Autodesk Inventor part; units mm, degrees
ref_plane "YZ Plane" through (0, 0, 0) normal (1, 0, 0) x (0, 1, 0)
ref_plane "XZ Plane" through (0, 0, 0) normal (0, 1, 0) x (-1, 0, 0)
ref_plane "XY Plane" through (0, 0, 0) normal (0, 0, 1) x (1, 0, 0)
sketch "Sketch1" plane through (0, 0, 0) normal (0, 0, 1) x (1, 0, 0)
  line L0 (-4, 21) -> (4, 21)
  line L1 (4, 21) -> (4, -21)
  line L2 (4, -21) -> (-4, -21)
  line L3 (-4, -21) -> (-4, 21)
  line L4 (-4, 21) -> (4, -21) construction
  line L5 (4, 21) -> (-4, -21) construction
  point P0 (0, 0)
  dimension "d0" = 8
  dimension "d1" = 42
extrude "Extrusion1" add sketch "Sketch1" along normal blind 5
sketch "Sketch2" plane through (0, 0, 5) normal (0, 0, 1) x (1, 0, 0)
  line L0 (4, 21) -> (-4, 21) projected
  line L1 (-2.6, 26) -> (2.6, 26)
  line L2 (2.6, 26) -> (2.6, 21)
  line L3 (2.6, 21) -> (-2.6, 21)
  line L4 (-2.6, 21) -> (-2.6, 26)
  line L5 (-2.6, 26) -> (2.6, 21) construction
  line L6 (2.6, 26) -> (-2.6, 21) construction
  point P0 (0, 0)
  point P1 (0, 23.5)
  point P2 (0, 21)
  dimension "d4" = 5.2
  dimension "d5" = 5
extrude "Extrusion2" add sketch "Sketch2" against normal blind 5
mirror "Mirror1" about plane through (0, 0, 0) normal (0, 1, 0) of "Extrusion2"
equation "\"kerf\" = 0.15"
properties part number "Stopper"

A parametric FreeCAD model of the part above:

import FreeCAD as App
import Part
import Sketcher
from FreeCAD import Vector
Q = App.Units.Quantity


def add_polygon(sketch, points):
    """Adds a closed chain of lines whose ends are joined by coincident constraints."""
    first, n = sketch.GeometryCount, len(points)
    for a, b in zip(points, points[1:] + points[:1]):
        sketch.addGeometry(Part.LineSegment(App.Vector(*a, 0), App.Vector(*b, 0)), False)
    for i in range(n):
        sketch.addConstraint(Sketcher.Constraint("Coincident", first + i, 2, first + (i + 1) % n, 1))

doc = App.newDocument("Part")
body = doc.addObject("PartDesign::Body", "Body")

# Sketch on XY plane
sketch1 = doc.addObject("Sketcher::SketchObject", "Sketch")
body.addObject(sketch1)
sketch1.AttachmentSupport = (doc.XY_Plane, [""])
sketch1.MapMode = "FlatFace"
add_polygon(sketch1, [(4, 21), (-4, 21), (-4, -21), (4, -21)])  # lines 0-3
sketch1.addConstraint([
    Sketcher.Constraint("Horizontal", 0),
    Sketcher.Constraint("Vertical", 1),
    Sketcher.Constraint("Horizontal", 2),
    Sketcher.Constraint("Vertical", 3),
    Sketcher.Constraint("Symmetric", 0, 2, 2, 2, -1, 1),
    Sketcher.Constraint("DistanceX", 0, 2, 0, 1, Q("8 mm")),
    Sketcher.Constraint("DistanceY", 1, 2, 1, 1, Q("42 mm")),
])
pad1 = doc.addObject("PartDesign::Pad", "Pad")
body.addObject(pad1)
pad1.Profile = sketch1
pad1.Length = 5

# Sketch on XY plane
sketch2 = doc.addObject("Sketcher::SketchObject", "Sketch001")
body.addObject(sketch2)
sketch2.AttachmentSupport = (doc.XY_Plane, [""])
sketch2.MapMode = "FlatFace"
sketch2.AttachmentOffset = App.Placement(Vector(0, 0, 5), App.Rotation())
add_polygon(sketch2, [(-3, 21), (3, 21), (3, 26), (-3, 26)])  # lines 0-3
sketch2.addConstraint([
    Sketcher.Constraint("Horizontal", 0),
    Sketcher.Constraint("Vertical", 1),
    Sketcher.Constraint("Horizontal", 2),
    Sketcher.Constraint("Vertical", 3),
    Sketcher.Constraint("DistanceY", 1, 1, 1, 2, Q("5 mm")),
    Sketcher.Constraint("DistanceX", 0, 1, 0, 2, Q("5.2 mm")),
    Sketcher.Constraint("DistanceY", -1, 1, 0, 2, Q("21 mm")),
    Sketcher.Constraint("DistanceX", -1, 1, 0, 2, Q("2.6 mm")),
])
pad2 = doc.addObject("PartDesign::Pad", "Pad001")
body.addObject(pad2)
pad2.Profile = sketch2
pad2.Length = 5
pad2.Reversed = True
doc.recompute()

mirrored = doc.addObject("PartDesign::Mirrored", "Mirrored")
body.addObject(mirrored)
mirrored.Originals = [pad2]
mirrored.MirrorPlane = (doc.XZ_Plane, [""])
body.Tip = mirrored

doc.recompute()
